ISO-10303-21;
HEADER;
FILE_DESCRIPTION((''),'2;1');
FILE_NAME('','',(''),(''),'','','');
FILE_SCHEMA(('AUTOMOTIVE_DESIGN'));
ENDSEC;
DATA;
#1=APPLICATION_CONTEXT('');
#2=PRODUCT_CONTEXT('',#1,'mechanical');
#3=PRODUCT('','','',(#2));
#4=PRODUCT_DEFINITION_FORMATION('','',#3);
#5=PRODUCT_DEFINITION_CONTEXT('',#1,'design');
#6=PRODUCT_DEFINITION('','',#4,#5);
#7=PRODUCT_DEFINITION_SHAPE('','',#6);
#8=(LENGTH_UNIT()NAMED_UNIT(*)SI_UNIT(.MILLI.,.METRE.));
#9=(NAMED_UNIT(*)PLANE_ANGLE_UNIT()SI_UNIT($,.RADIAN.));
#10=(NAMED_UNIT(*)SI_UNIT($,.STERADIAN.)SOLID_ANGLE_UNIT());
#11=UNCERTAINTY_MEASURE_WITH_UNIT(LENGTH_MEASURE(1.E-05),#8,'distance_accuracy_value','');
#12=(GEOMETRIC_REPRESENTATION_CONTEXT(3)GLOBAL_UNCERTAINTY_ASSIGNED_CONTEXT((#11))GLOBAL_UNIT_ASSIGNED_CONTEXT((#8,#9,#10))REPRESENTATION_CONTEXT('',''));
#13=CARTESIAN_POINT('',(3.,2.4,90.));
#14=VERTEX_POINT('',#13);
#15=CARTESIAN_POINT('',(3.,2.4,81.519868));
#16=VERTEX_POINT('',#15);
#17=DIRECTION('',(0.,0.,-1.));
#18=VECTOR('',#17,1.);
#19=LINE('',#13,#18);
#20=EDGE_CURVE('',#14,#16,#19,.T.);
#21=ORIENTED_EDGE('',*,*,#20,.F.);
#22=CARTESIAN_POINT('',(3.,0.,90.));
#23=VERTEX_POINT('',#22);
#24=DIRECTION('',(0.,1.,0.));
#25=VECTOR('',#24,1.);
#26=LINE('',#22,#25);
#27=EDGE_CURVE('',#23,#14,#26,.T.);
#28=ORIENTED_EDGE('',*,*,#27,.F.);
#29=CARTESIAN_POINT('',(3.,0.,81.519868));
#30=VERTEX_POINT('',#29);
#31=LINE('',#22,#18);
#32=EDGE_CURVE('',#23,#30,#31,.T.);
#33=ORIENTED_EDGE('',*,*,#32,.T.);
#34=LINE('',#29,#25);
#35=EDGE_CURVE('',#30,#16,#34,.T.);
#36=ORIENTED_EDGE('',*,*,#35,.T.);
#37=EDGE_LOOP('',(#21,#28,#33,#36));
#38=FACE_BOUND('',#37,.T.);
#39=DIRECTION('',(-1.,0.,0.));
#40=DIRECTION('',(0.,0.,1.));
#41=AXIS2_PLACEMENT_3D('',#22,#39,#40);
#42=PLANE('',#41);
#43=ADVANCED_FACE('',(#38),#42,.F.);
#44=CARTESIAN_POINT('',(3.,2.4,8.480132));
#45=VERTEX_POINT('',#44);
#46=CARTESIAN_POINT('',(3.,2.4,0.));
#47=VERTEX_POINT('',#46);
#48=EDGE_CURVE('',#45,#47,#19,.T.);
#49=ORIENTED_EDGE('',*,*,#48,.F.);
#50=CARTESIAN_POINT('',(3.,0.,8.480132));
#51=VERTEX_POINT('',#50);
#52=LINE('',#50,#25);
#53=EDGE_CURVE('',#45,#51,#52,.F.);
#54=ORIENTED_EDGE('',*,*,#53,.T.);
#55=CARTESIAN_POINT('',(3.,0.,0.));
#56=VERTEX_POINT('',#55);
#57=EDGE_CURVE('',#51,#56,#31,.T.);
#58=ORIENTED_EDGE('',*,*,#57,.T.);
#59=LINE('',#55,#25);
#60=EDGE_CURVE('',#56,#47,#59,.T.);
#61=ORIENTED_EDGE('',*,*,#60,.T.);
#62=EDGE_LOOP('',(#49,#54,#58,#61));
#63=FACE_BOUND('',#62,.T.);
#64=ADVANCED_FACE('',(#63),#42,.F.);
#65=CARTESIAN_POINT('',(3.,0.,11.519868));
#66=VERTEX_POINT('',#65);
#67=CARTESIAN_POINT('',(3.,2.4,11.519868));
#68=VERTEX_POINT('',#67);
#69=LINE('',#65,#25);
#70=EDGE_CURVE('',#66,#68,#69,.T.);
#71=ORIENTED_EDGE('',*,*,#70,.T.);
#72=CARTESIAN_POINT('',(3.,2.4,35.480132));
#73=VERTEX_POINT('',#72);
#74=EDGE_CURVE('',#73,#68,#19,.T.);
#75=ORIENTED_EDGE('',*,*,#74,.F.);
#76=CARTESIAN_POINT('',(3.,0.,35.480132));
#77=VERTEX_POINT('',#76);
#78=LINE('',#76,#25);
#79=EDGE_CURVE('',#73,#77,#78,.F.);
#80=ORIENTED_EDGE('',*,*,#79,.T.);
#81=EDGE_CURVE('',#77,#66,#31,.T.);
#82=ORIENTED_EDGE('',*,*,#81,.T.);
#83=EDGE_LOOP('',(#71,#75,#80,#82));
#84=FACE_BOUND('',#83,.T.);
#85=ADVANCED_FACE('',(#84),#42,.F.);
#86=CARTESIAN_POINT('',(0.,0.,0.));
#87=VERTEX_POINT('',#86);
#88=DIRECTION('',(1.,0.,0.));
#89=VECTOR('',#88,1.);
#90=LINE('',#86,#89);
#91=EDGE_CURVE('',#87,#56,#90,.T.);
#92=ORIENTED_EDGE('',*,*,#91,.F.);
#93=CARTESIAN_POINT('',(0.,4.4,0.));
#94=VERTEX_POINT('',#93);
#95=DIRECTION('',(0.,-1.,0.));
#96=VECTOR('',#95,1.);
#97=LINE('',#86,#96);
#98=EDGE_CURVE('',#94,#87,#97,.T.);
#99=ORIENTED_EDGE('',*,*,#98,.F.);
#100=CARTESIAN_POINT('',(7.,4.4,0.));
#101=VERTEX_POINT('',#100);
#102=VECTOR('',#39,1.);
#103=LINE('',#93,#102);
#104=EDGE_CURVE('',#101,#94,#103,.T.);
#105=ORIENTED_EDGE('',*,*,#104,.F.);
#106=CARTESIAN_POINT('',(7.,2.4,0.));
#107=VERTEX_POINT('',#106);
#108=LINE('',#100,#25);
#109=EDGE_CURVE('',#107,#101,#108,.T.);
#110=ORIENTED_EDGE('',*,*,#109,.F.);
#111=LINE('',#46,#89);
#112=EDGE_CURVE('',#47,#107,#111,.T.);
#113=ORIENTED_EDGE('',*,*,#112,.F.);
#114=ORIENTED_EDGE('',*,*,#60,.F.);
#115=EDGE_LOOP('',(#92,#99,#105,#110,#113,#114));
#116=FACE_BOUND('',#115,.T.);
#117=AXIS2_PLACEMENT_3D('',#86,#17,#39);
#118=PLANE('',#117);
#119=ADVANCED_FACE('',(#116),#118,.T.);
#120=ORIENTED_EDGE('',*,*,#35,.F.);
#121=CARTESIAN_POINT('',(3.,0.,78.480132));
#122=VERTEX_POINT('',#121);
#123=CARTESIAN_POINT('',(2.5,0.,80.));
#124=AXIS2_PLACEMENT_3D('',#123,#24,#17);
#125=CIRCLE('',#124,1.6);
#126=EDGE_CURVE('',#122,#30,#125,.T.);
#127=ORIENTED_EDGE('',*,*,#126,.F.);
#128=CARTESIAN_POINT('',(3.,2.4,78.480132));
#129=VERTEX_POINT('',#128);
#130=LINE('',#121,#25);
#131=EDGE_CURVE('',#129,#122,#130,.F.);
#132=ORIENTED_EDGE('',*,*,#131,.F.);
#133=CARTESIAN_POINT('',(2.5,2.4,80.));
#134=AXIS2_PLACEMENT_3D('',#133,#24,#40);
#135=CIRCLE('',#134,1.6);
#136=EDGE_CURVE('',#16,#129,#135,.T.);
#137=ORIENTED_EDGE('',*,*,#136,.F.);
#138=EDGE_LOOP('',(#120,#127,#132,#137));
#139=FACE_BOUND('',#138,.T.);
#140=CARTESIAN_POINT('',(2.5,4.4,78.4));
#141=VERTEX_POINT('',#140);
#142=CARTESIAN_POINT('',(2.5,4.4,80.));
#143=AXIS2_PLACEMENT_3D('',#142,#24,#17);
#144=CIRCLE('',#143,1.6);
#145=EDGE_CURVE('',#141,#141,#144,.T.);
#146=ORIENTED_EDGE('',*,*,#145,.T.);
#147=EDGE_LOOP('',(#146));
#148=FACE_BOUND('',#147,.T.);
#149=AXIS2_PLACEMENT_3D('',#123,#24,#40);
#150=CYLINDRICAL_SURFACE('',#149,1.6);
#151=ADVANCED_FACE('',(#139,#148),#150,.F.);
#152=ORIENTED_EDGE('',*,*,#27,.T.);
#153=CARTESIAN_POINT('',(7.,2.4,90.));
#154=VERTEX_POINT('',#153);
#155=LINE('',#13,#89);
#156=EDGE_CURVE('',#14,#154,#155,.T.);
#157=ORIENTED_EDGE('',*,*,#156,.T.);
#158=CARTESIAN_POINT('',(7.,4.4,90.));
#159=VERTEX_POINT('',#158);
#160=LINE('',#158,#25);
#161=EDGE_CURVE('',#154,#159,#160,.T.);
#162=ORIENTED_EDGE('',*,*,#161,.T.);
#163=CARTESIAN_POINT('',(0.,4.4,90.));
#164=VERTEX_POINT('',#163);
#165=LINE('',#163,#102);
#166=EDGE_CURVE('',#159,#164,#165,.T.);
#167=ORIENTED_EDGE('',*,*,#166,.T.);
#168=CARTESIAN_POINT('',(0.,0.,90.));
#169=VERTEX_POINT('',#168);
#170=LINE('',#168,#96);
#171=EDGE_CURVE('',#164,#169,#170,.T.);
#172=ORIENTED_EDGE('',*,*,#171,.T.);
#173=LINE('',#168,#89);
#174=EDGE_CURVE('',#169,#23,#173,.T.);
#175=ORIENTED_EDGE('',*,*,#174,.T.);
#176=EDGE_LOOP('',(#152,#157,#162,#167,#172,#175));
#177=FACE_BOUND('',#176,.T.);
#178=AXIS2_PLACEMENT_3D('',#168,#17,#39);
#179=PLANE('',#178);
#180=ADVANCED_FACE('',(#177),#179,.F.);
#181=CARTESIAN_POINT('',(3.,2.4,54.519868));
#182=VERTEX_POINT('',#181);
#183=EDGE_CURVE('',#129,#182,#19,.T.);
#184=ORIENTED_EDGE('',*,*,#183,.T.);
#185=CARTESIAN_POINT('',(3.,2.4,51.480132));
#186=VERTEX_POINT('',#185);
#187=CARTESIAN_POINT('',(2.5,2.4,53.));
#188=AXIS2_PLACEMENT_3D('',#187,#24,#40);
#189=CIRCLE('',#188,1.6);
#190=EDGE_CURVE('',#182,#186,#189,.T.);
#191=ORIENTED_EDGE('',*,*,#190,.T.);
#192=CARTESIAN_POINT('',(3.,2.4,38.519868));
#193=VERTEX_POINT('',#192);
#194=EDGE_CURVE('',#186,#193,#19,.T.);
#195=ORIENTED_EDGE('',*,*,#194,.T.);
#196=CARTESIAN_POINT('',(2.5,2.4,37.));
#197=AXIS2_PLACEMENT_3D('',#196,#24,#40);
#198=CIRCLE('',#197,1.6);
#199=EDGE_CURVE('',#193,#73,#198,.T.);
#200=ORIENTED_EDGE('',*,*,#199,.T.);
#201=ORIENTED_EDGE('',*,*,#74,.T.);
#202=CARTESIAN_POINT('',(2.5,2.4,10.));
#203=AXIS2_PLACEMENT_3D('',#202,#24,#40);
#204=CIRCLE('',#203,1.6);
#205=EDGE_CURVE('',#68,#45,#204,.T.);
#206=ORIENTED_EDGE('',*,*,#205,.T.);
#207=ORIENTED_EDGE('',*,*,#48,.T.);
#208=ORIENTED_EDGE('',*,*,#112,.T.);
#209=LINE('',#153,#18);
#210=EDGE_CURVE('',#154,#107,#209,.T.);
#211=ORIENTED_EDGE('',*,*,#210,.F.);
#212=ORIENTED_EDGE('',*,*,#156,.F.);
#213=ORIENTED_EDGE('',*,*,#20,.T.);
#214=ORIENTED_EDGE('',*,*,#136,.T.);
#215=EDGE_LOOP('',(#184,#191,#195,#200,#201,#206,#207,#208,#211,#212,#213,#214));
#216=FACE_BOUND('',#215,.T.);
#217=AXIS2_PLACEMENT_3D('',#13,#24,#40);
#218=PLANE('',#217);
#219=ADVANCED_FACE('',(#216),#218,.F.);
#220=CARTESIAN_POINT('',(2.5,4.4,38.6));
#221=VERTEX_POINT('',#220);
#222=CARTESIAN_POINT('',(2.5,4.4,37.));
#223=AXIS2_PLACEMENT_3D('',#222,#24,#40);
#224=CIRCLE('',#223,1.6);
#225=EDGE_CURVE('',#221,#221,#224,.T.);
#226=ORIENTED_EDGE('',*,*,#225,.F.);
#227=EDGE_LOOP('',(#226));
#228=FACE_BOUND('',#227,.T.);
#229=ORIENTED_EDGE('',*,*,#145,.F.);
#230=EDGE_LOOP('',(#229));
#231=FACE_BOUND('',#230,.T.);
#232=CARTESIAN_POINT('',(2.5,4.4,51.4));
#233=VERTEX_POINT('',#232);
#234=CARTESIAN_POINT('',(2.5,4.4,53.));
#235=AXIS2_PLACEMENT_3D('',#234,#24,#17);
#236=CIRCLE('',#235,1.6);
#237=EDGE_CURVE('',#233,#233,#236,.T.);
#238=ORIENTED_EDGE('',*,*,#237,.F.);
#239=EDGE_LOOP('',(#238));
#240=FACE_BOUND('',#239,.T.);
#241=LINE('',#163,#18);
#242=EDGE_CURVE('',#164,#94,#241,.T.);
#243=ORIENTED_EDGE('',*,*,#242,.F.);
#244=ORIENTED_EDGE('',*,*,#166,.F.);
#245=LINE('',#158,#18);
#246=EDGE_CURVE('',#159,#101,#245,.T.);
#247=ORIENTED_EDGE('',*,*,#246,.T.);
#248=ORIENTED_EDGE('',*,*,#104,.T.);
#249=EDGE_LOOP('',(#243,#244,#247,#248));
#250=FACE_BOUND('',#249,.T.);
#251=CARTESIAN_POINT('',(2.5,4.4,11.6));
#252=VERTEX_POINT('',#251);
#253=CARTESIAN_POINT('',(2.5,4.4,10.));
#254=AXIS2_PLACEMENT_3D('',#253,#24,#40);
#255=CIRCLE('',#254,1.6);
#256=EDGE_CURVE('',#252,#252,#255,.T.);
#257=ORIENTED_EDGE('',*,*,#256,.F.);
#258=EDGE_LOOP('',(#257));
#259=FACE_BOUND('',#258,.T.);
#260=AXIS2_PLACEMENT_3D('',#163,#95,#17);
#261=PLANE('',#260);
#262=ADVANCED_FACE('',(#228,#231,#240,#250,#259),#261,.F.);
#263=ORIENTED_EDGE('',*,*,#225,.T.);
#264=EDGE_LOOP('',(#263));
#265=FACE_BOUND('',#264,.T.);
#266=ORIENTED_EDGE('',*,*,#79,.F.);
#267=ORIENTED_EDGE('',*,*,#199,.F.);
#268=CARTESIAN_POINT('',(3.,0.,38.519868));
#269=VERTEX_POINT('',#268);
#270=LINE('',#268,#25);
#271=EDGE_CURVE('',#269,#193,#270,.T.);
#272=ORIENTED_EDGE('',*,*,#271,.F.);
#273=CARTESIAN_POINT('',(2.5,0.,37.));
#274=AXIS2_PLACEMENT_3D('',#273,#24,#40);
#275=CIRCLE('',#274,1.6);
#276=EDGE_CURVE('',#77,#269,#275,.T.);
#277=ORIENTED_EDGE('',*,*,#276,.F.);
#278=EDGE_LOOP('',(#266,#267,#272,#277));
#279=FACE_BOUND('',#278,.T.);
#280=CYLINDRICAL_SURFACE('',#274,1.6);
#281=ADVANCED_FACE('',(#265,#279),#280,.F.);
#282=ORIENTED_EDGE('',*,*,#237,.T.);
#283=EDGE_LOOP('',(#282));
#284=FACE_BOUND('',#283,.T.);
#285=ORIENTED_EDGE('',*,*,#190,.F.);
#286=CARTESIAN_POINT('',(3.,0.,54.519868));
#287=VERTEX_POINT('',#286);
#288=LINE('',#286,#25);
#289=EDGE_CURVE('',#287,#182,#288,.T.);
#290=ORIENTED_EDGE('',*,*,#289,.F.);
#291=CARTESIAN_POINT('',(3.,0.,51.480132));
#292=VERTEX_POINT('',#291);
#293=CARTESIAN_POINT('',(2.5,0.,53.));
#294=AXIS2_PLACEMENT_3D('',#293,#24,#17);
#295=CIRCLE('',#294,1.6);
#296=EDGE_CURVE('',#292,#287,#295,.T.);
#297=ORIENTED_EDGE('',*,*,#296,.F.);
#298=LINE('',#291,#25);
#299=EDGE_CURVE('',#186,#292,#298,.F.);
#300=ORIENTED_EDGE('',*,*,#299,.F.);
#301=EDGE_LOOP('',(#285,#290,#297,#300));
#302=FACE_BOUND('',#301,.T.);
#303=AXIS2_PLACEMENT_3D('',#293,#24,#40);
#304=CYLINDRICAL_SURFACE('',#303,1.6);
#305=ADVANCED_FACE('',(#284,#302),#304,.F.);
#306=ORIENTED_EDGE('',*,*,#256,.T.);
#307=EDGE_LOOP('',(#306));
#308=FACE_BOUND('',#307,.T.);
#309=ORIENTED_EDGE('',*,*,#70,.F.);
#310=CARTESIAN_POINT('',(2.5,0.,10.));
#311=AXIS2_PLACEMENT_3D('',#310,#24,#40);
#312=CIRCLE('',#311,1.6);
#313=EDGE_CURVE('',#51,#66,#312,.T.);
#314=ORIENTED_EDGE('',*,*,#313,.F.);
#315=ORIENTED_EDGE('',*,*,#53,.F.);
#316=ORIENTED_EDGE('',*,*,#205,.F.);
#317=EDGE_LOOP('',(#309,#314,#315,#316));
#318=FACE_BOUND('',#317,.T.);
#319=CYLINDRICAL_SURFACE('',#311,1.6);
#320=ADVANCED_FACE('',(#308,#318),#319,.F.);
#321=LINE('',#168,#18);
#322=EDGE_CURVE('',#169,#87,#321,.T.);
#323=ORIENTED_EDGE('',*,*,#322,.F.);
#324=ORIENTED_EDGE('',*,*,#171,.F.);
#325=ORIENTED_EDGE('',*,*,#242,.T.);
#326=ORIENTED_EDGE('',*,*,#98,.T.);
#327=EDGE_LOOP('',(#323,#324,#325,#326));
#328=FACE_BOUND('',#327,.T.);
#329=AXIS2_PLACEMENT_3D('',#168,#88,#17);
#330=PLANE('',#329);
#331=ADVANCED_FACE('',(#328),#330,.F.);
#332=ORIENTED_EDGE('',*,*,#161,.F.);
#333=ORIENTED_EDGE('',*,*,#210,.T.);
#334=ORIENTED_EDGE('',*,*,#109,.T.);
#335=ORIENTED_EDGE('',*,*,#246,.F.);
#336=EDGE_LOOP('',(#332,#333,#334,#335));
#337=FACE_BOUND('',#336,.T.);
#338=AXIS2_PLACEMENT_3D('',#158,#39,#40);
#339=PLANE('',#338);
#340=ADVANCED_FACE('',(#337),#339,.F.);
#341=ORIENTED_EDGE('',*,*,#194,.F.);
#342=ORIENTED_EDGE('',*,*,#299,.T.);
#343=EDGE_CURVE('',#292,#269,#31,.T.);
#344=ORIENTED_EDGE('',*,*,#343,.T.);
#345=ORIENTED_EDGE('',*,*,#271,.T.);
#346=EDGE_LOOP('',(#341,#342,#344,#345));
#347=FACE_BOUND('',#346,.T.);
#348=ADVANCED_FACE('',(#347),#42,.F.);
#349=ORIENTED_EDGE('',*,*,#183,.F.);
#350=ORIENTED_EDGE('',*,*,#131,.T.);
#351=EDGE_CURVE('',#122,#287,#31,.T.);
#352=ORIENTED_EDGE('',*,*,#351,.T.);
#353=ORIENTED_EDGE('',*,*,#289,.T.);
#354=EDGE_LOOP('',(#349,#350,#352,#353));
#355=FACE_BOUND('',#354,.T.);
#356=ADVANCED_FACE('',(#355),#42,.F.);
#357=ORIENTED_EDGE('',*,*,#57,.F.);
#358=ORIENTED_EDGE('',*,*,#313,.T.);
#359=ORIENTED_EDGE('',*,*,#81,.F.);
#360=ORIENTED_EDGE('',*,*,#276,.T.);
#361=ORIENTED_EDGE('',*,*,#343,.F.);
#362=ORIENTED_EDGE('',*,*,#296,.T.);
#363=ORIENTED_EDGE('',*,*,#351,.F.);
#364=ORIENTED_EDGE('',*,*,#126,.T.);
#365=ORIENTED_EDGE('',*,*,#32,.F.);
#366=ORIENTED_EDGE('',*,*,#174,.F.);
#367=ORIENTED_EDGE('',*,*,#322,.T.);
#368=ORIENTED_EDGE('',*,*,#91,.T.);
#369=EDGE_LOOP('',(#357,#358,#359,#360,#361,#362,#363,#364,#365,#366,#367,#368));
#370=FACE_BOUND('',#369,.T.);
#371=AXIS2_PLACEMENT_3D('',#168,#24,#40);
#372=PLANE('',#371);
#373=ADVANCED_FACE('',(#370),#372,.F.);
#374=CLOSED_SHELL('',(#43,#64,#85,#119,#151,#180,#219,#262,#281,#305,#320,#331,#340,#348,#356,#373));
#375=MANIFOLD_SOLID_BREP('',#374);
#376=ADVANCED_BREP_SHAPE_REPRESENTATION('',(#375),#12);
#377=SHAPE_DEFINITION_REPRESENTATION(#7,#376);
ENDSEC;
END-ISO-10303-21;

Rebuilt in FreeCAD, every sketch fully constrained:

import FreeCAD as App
import Part
import Sketcher

V = App.Vector
Q = App.Units.Quantity


def add_polygon(sketch, points):
    """Adds a closed chain of lines whose ends are joined by coincident constraints."""
    first, n = sketch.GeometryCount, len(points)
    for a, b in zip(points, points[1:] + points[:1]):
        sketch.addGeometry(Part.LineSegment(App.Vector(*a, 0), App.Vector(*b, 0)), False)
    for i in range(n):
        sketch.addConstraint(Sketcher.Constraint("Coincident", first + i, 2, first + (i + 1) % n, 1))

doc = App.newDocument("Part")
body = doc.addObject("PartDesign::Body", "Body")

sketch1 = body.newObject("Sketcher::SketchObject", "Sketch")
sketch1.AttachmentSupport = (doc.getObject("XY_Plane"), [""])
sketch1.MapMode = "FlatFace"
add_polygon(sketch1, [(3, 0), (3, 2.4), (7, 2.4), (7, 4.4), (0, 4.4), (0, 0)])
sketch1.addConstraint([
    Sketcher.Constraint("Vertical", 0),
    Sketcher.Constraint("Horizontal", 1),
    Sketcher.Constraint("Vertical", 2),
    Sketcher.Constraint("Horizontal", 3),
    Sketcher.Constraint("Vertical", 4),
    Sketcher.Constraint("Horizontal", 5),
    Sketcher.Constraint("Coincident", 4, 2, -1, 1),
    Sketcher.Constraint("DistanceX", 1, 1, 1, 2, Q("4 mm")),
    Sketcher.Constraint("DistanceX", 3, 2, 3, 1, Q("7 mm")),
    Sketcher.Constraint("DistanceY", 2, 1, 2, 2, Q("2 mm")),
    Sketcher.Constraint("DistanceY", 0, 1, 0, 2, Q("2.4 mm")),
])
pad1 = body.newObject("PartDesign::Pad", "Pad")
pad1.Profile = sketch1
pad1.Length = 90

sketch2 = body.newObject("Sketcher::SketchObject", "Sketch001")
sketch2.AttachmentSupport = (doc.getObject("XZ_Plane"), [""])
sketch2.MapMode = "FlatFace"
sketch2.AttachmentOffset = App.Placement(V(0, 0, -4.4), App.Rotation())
sketch2.addGeometry([
    Part.Circle(V(2.5, 37, 0), V(0, 0, 1), 1.6),
    Part.Circle(V(2.5, 10, 0), V(0, 0, 1), 1.6),
    Part.Circle(V(2.5, 80, 0), V(0, 0, 1), 1.6),
    Part.Circle(V(2.5, 53, 0), V(0, 0, 1), 1.6),
], False)
sketch2.addConstraint([
    Sketcher.Constraint("Equal", 0, 1),
    Sketcher.Constraint("Equal", 1, 2),
    Sketcher.Constraint("Equal", 2, 3),
    Sketcher.Constraint("Vertical", 0, 3, 1, 3),
    Sketcher.Constraint("Vertical", 1, 3, 2, 3),
    Sketcher.Constraint("Vertical", 2, 3, 3, 3),
    Sketcher.Constraint("Diameter", 0, Q("3.2 mm")),
    Sketcher.Constraint("DistanceY", -1, 1, 0, 3, Q("37 mm")),
    Sketcher.Constraint("DistanceY", -1, 1, 1, 3, Q("10 mm")),
    Sketcher.Constraint("DistanceY", -1, 1, 2, 3, Q("80 mm")),
    Sketcher.Constraint("DistanceY", -1, 1, 3, 3, Q("53 mm")),
    Sketcher.Constraint("DistanceX", -1, 1, 0, 3, Q("2.5 mm")),
])
pocket1 = body.newObject("PartDesign::Pocket", "Pocket")
pocket1.Profile = sketch2
pocket1.Type = "ThroughAll"
pocket1.Reversed = True

doc.recompute()
